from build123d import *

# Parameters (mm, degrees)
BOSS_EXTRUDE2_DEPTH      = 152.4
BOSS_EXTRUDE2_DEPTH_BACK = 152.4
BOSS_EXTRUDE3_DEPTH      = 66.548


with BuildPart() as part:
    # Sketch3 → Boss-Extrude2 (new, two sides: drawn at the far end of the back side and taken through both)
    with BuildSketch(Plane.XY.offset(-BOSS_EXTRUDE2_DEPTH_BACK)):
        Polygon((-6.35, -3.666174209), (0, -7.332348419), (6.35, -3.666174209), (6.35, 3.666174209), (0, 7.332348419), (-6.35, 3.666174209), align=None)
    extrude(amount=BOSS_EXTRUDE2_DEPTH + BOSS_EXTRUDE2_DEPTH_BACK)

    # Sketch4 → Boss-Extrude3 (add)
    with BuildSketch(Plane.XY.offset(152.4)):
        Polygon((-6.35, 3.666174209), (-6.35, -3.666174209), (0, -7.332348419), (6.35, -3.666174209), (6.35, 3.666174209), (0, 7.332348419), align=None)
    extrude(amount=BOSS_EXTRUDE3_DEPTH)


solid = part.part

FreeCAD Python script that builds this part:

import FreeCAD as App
import Part
import Sketcher
from FreeCAD import Vector
Q = App.Units.Quantity

doc = App.newDocument("Part")
body = doc.addObject("PartDesign::Body", "Body")

sketch1 = doc.addObject("Sketcher::SketchObject", "Sketch")
body.addObject(sketch1)
sketch1.AttachmentSupport = (doc.XY_Plane, [""])
sketch1.MapMode = "FlatFace"
sketch1.addGeometry([
    Part.LineSegment(Vector(-6.35, -3.666174, 0), Vector(0, -7.332348, 0)),
    Part.LineSegment(Vector(0, -7.332348, 0), Vector(6.35, -3.666174, 0)),
    Part.LineSegment(Vector(6.35, -3.666174, 0), Vector(6.35, 3.666174, 0)),
    Part.LineSegment(Vector(6.35, 3.666174, 0), Vector(0, 7.332348, 0)),
    Part.LineSegment(Vector(0, 7.332348, 0), Vector(-6.35, 3.666174, 0)),
    Part.LineSegment(Vector(-6.35, 3.666174, 0), Vector(-6.35, -3.666174, 0)),
], False)
sketch1.addConstraint([
    Sketcher.Constraint("Coincident", 0, 2, 1, 1),
    Sketcher.Constraint("Coincident", 1, 2, 2, 1),
    Sketcher.Constraint("Coincident", 2, 2, 3, 1),
    Sketcher.Constraint("Coincident", 3, 2, 4, 1),
    Sketcher.Constraint("Coincident", 4, 2, 5, 1),
    Sketcher.Constraint("Coincident", 5, 2, 0, 1),
    Sketcher.Constraint("Vertical", 2),
    Sketcher.Constraint("Vertical", 5),
    Sketcher.Constraint("Symmetric", 0, 2, 3, 2, -1, 1),
    Sketcher.Constraint("Symmetric", 1, 2, 4, 2, -1, 1),
    Sketcher.Constraint("PointOnObject", 0, 2, -2),
    Sketcher.Constraint("Parallel", 0, 3),
    Sketcher.Constraint("Horizontal", 2, 2, 4, 2),
    Sketcher.Constraint("Angle", 0, Q("-30 deg")),
    Sketcher.Constraint("DistanceX", 4, 2, 2, 2, Q("0.5 in")),
    Sketcher.Constraint("DistanceY", 2, 1, 2, 2, Q("7.332348 mm")),
])
pad1 = doc.addObject("PartDesign::Pad", "Pad")
body.addObject(pad1)
pad1.Profile = sketch1
pad1.Type = "TwoLengths"
pad1.Length = Q("6 in")
pad1.Length2 = Q("6 in")

sketch2 = doc.addObject("Sketcher::SketchObject", "Sketch001")
body.addObject(sketch2)
sketch2.AttachmentSupport = (doc.XY_Plane, [""])
sketch2.MapMode = "FlatFace"
sketch2.AttachmentOffset = App.Placement(Vector(0, 0, 6 * 25.4), App.Rotation())
sketch2.addGeometry([
    Part.LineSegment(Vector(-6.35, 3.666174, 0), Vector(-6.35, -3.666174, 0)),
    Part.LineSegment(Vector(-6.35, -3.666174, 0), Vector(0, -7.332348, 0)),
    Part.LineSegment(Vector(0, -7.332348, 0), Vector(6.35, -3.666174, 0)),
    Part.LineSegment(Vector(6.35, -3.666174, 0), Vector(6.35, 3.666174, 0)),
    Part.LineSegment(Vector(6.35, 3.666174, 0), Vector(0, 7.332348, 0)),
    Part.LineSegment(Vector(0, 7.332348, 0), Vector(-6.35, 3.666174, 0)),
], False)
sketch2.addConstraint([
    Sketcher.Constraint("Coincident", 0, 2, 1, 1),
    Sketcher.Constraint("Coincident", 1, 2, 2, 1),
    Sketcher.Constraint("Coincident", 2, 2, 3, 1),
    Sketcher.Constraint("Coincident", 3, 2, 4, 1),
    Sketcher.Constraint("Coincident", 4, 2, 5, 1),
    Sketcher.Constraint("Coincident", 5, 2, 0, 1),
    Sketcher.Constraint("Vertical", 0),
    Sketcher.Constraint("Vertical", 3),
    Sketcher.Constraint("Symmetric", 0, 2, 3, 2, -1, 1),
    Sketcher.Constraint("Symmetric", 1, 2, 4, 2, -1, 1),
    Sketcher.Constraint("PointOnObject", 1, 2, -2),
    Sketcher.Constraint("Parallel", 2, 5),
    Sketcher.Constraint("Horizontal", 0, 2, 2, 2),
    Sketcher.Constraint("Angle", 1, Q("-30 deg")),
    Sketcher.Constraint("DistanceX", 0, 2, 2, 2, Q("0.5 in")),
    Sketcher.Constraint("DistanceY", 0, 2, 0, 1, Q("7.332348 mm")),
])
pad2 = doc.addObject("PartDesign::Pad", "Pad001")
body.addObject(pad2)
pad2.Profile = sketch2
pad2.Length = Q("2.62 in")

doc.recompute()
